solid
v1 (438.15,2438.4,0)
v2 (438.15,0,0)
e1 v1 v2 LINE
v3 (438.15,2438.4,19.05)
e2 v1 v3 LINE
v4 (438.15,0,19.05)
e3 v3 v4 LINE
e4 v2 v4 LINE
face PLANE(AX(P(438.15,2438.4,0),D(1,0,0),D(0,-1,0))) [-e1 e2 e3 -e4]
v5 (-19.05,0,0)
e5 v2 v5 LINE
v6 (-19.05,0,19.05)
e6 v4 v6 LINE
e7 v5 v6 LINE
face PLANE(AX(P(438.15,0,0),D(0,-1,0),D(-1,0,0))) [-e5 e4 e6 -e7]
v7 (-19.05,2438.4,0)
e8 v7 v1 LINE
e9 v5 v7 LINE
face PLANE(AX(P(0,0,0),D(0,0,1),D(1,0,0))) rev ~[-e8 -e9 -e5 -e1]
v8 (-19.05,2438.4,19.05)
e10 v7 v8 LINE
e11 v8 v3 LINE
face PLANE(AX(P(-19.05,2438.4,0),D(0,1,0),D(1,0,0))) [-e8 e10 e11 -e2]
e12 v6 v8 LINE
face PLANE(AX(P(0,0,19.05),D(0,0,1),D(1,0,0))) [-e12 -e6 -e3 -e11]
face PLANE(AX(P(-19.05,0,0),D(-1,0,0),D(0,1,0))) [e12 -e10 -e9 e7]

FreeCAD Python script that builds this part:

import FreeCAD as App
import Part
import Sketcher
Q = App.Units.Quantity

doc = App.newDocument("Part")
body = doc.addObject("PartDesign::Body", "Body")

sketch1 = body.newObject("Sketcher::SketchObject", "Sketch")
sketch1.AttachmentSupport = (doc.getObject("XY_Plane"), [""])
sketch1.MapMode = "FlatFace"
sketch1.addGeometry(Part.LineSegment(App.Vector(-19.05, 2438.4, 0), App.Vector(-19.05, 0, 0)), False)
sketch1.addGeometry(Part.LineSegment(App.Vector(-19.05, 0, 0), App.Vector(438.15, 0, 0)), False)
sketch1.addGeometry(Part.LineSegment(App.Vector(438.15, 0, 0), App.Vector(438.15, 2438.4, 0)), False)
sketch1.addGeometry(Part.LineSegment(App.Vector(438.15, 2438.4, 0), App.Vector(-19.05, 2438.4, 0)), False)
sketch1.addConstraint(Sketcher.Constraint("Coincident", 0, 2, 1, 1))
sketch1.addConstraint(Sketcher.Constraint("Coincident", 1, 2, 2, 1))
sketch1.addConstraint(Sketcher.Constraint("Coincident", 2, 2, 3, 1))
sketch1.addConstraint(Sketcher.Constraint("Coincident", 3, 2, 0, 1))
sketch1.addConstraint(Sketcher.Constraint("Vertical", 0))
sketch1.addConstraint(Sketcher.Constraint("Horizontal", 1))
sketch1.addConstraint(Sketcher.Constraint("Vertical", 2))
sketch1.addConstraint(Sketcher.Constraint("Horizontal", 3))
sketch1.addConstraint(Sketcher.Constraint("PointOnObject", 0, 2, -1))
sketch1.addConstraint(Sketcher.Constraint("DistanceX", 1, 1, 1, 2, Q("18 in")))
sketch1.addConstraint(Sketcher.Constraint("DistanceY", 0, 2, 0, 1, Q("96 in")))
sketch1.addConstraint(Sketcher.Constraint("DistanceX", 0, 2, -1, 1, Q("0.75 in")))
pad1 = body.newObject("PartDesign::Pad", "Pad")
pad1.Profile = sketch1
pad1.Length = Q("0.75 in")

doc.recompute()
